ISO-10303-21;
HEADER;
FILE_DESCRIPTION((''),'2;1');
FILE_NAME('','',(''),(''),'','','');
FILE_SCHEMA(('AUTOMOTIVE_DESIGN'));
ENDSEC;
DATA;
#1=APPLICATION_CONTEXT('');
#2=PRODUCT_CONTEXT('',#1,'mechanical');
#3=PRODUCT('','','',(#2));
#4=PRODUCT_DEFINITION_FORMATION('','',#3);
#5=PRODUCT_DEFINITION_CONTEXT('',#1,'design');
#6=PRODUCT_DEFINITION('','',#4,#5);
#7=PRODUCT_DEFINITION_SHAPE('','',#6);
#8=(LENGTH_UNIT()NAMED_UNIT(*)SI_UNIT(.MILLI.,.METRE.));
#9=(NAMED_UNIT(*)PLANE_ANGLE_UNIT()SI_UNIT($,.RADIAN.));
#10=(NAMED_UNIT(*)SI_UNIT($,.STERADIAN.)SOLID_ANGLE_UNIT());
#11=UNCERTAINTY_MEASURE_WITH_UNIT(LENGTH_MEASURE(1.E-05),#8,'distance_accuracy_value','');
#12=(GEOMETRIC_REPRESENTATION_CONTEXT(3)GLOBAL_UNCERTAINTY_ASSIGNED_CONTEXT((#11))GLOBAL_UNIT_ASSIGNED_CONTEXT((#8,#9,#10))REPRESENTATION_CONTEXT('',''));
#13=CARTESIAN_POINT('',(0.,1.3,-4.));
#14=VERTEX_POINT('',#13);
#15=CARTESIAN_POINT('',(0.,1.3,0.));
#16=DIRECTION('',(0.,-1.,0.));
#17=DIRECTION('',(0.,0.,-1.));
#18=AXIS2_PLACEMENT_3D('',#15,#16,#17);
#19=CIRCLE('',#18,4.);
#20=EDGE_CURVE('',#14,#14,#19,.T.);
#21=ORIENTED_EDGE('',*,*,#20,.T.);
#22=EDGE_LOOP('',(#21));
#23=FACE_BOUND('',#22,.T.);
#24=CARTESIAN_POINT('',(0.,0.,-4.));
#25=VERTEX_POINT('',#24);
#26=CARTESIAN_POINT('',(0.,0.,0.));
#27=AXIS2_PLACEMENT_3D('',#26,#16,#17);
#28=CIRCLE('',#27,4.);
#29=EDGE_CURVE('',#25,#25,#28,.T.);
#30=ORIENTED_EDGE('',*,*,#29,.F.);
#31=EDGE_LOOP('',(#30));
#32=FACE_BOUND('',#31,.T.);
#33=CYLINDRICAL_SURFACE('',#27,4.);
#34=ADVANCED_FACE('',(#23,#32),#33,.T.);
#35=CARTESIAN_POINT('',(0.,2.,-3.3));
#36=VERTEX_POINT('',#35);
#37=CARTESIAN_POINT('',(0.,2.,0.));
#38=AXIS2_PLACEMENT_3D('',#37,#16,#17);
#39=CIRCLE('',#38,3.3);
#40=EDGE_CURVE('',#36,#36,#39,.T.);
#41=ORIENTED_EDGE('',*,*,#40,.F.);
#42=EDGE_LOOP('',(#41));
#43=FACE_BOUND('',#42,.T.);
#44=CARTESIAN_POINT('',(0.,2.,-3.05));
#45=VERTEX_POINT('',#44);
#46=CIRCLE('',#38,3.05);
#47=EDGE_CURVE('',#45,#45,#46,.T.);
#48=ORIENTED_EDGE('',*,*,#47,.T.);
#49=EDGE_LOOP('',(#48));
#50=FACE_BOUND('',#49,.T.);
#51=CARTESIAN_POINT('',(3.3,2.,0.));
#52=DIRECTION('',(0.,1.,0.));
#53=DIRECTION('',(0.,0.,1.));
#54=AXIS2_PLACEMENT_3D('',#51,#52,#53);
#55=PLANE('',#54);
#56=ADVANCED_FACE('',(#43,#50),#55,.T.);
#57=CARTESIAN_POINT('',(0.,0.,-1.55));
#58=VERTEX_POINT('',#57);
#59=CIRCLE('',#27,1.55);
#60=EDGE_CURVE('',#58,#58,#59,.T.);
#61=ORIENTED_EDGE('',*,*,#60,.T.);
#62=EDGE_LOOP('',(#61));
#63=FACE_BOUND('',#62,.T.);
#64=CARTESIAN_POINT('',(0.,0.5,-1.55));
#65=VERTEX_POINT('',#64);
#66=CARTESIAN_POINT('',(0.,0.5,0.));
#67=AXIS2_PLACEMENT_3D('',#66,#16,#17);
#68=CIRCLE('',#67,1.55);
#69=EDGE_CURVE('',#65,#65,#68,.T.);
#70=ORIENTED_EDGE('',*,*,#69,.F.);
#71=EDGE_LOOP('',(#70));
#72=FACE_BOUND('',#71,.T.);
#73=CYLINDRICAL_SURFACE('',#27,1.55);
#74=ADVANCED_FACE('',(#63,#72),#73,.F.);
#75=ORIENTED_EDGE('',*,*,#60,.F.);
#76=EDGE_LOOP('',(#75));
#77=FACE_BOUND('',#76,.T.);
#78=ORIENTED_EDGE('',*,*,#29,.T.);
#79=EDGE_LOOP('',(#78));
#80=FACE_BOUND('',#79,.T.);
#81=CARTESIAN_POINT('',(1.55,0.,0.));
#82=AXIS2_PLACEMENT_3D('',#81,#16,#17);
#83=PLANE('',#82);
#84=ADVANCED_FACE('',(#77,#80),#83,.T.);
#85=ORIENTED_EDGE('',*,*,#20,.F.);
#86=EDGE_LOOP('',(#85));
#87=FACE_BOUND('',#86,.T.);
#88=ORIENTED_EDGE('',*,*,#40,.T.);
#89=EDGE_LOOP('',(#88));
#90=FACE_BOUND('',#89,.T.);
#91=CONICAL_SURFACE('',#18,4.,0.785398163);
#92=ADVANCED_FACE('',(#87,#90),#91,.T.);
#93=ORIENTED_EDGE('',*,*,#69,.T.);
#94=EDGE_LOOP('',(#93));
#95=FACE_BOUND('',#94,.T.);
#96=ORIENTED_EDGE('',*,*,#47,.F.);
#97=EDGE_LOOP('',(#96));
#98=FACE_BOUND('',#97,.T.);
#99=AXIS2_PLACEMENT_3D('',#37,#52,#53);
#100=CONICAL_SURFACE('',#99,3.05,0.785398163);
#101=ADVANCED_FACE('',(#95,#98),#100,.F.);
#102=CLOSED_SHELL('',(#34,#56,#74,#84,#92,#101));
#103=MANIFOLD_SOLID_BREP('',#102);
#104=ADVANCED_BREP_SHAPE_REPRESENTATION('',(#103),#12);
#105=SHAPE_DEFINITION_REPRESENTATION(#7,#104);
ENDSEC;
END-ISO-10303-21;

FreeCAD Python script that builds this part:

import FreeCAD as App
import Part
import Sketcher

V = App.Vector
Q = App.Units.Quantity

doc = App.newDocument("Part")
body = doc.addObject("PartDesign::Body", "Body")

sketch1 = doc.addObject("Sketcher::SketchObject", "Sketch")
body.addObject(sketch1)
sketch1.AttachmentSupport = (doc.XY_Plane, [""])
sketch1.MapMode = "FlatFace"
sketch1.addGeometry(Part.LineSegment(V(4, 0, 0), V(4, 1.3, 0)), False)
sketch1.addGeometry(Part.LineSegment(V(4, 1.3, 0), V(3.3, 2, 0)), False)
sketch1.addGeometry(Part.LineSegment(V(3.3, 2, 0), V(3.05, 2, 0)), False)
sketch1.addGeometry(Part.LineSegment(V(3.05, 2, 0), V(1.55, 0.5, 0)), False)
sketch1.addGeometry(Part.LineSegment(V(1.55, 0.5, 0), V(1.55, 0, 0)), False)
sketch1.addGeometry(Part.LineSegment(V(1.55, 0, 0), V(4, 0, 0)), False)
sketch1.addConstraint(Sketcher.Constraint("Coincident", 0, 2, 1, 1))
sketch1.addConstraint(Sketcher.Constraint("Coincident", 1, 2, 2, 1))
sketch1.addConstraint(Sketcher.Constraint("Coincident", 2, 2, 3, 1))
sketch1.addConstraint(Sketcher.Constraint("Coincident", 3, 2, 4, 1))
sketch1.addConstraint(Sketcher.Constraint("Coincident", 4, 2, 5, 1))
sketch1.addConstraint(Sketcher.Constraint("Coincident", 5, 2, 0, 1))
sketch1.addConstraint(Sketcher.Constraint("Vertical", 0))
sketch1.addConstraint(Sketcher.Constraint("Horizontal", 2))
sketch1.addConstraint(Sketcher.Constraint("Vertical", 4))
sketch1.addConstraint(Sketcher.Constraint("Horizontal", 5))
sketch1.addConstraint(Sketcher.Constraint("PointOnObject", 4, 2, -1))
sketch1.addConstraint(Sketcher.Constraint("Perpendicular", 1, 3))
sketch1.addConstraint(Sketcher.Constraint("Angle", 1, Q("135 deg")))
sketch1.addConstraint(Sketcher.Constraint("DistanceY", 0, 1, 0, 2, 1.3))
sketch1.addConstraint(Sketcher.Constraint("DistanceY", 4, 2, 4, 1, 0.5))
sketch1.addConstraint(Sketcher.Constraint("DistanceX", -1, 1, 0, 2, 4.0))
sketch1.addConstraint(Sketcher.Constraint("DistanceY", -1, 1, 1, 2, 2.0))
sketch1.addConstraint(Sketcher.Constraint("DistanceX", 2, 2, 2, 1, 0.25))
revolution = doc.addObject("PartDesign::Revolution", "Revolution")
body.addObject(revolution)
revolution.Profile = sketch1
revolution.ReferenceAxis = (sketch1, ["V_Axis"])
revolution.Angle = 360

doc.recompute()
